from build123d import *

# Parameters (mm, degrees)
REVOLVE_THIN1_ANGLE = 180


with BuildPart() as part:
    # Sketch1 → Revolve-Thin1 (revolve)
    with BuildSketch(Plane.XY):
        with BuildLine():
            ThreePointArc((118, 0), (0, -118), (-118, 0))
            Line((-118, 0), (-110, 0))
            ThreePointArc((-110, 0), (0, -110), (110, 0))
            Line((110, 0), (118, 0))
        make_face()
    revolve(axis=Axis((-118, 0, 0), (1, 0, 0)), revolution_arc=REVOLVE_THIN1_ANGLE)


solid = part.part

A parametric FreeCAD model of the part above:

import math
import FreeCAD as App
import Part
import Sketcher

doc = App.newDocument("Part")
params = doc.addObject("Spreadsheet::Sheet", "Params")
for row, (alias, value) in enumerate([
    ("sketch1_radius", "118 mm"),
    ("sketch1_radius2", "110 mm"),
    ("revolution_angle", "180 deg"),
], start=1):
    params.set(f"A{row}", alias)
    params.set(f"B{row}", "=" + value)
    params.setAlias(f"B{row}", alias)

body = doc.addObject("PartDesign::Body", "Body")

sketch1 = body.newObject("Sketcher::SketchObject", "Sketch")
sketch1.AttachmentSupport = (doc.getObject("XY_Plane"), [""])
sketch1.MapMode = "FlatFace"
sketch1.addGeometry(Part.ArcOfCircle(Part.Circle(App.Vector(0, 0, 0), App.Vector(0, 0, 1), 118), math.radians(180), math.radians(360)), False)
sketch1.addGeometry(Part.LineSegment(App.Vector(118, 0, 0), App.Vector(110, 0, 0)), False)
sketch1.addGeometry(Part.ArcOfCircle(Part.Circle(App.Vector(0, 0, 0), App.Vector(0, 0, 1), 110), math.radians(180), math.radians(360)), False)
sketch1.addGeometry(Part.LineSegment(App.Vector(-110, 0, 0), App.Vector(-118, 0, 0)), False)
sketch1.addConstraint(Sketcher.Constraint("Coincident", 0, 2, 1, 1))
sketch1.addConstraint(Sketcher.Constraint("Coincident", 1, 2, 2, 2))
sketch1.addConstraint(Sketcher.Constraint("Coincident", 2, 1, 3, 1))
sketch1.addConstraint(Sketcher.Constraint("Coincident", 3, 2, 0, 1))
sketch1.addConstraint(Sketcher.Constraint("Horizontal", 1))
sketch1.addConstraint(Sketcher.Constraint("Horizontal", 3))
sketch1.addConstraint(Sketcher.Constraint("Coincident", 0, 3, -1, 1))
sketch1.addConstraint(Sketcher.Constraint("Coincident", 2, 3, -1, 1))
sketch1.addConstraint(Sketcher.Constraint("PointOnObject", 0, 2, -1))
sketch1.addConstraint(Sketcher.Constraint("PointOnObject", 2, 1, -1))
sketch1.addConstraint(Sketcher.Constraint("Radius", 0, 118.0))
sketch1.addConstraint(Sketcher.Constraint("Radius", 2, 110.0))
sketch1.setExpression("Constraints[10]", "Params.sketch1_radius")
sketch1.setExpression("Constraints[11]", "Params.sketch1_radius2")
revolution = body.newObject("PartDesign::Revolution", "Revolution")
revolution.Profile = sketch1
revolution.ReferenceAxis = (sketch1, ["H_Axis"])
revolution.setExpression("Angle", "Params.revolution_angle")

doc.recompute()
